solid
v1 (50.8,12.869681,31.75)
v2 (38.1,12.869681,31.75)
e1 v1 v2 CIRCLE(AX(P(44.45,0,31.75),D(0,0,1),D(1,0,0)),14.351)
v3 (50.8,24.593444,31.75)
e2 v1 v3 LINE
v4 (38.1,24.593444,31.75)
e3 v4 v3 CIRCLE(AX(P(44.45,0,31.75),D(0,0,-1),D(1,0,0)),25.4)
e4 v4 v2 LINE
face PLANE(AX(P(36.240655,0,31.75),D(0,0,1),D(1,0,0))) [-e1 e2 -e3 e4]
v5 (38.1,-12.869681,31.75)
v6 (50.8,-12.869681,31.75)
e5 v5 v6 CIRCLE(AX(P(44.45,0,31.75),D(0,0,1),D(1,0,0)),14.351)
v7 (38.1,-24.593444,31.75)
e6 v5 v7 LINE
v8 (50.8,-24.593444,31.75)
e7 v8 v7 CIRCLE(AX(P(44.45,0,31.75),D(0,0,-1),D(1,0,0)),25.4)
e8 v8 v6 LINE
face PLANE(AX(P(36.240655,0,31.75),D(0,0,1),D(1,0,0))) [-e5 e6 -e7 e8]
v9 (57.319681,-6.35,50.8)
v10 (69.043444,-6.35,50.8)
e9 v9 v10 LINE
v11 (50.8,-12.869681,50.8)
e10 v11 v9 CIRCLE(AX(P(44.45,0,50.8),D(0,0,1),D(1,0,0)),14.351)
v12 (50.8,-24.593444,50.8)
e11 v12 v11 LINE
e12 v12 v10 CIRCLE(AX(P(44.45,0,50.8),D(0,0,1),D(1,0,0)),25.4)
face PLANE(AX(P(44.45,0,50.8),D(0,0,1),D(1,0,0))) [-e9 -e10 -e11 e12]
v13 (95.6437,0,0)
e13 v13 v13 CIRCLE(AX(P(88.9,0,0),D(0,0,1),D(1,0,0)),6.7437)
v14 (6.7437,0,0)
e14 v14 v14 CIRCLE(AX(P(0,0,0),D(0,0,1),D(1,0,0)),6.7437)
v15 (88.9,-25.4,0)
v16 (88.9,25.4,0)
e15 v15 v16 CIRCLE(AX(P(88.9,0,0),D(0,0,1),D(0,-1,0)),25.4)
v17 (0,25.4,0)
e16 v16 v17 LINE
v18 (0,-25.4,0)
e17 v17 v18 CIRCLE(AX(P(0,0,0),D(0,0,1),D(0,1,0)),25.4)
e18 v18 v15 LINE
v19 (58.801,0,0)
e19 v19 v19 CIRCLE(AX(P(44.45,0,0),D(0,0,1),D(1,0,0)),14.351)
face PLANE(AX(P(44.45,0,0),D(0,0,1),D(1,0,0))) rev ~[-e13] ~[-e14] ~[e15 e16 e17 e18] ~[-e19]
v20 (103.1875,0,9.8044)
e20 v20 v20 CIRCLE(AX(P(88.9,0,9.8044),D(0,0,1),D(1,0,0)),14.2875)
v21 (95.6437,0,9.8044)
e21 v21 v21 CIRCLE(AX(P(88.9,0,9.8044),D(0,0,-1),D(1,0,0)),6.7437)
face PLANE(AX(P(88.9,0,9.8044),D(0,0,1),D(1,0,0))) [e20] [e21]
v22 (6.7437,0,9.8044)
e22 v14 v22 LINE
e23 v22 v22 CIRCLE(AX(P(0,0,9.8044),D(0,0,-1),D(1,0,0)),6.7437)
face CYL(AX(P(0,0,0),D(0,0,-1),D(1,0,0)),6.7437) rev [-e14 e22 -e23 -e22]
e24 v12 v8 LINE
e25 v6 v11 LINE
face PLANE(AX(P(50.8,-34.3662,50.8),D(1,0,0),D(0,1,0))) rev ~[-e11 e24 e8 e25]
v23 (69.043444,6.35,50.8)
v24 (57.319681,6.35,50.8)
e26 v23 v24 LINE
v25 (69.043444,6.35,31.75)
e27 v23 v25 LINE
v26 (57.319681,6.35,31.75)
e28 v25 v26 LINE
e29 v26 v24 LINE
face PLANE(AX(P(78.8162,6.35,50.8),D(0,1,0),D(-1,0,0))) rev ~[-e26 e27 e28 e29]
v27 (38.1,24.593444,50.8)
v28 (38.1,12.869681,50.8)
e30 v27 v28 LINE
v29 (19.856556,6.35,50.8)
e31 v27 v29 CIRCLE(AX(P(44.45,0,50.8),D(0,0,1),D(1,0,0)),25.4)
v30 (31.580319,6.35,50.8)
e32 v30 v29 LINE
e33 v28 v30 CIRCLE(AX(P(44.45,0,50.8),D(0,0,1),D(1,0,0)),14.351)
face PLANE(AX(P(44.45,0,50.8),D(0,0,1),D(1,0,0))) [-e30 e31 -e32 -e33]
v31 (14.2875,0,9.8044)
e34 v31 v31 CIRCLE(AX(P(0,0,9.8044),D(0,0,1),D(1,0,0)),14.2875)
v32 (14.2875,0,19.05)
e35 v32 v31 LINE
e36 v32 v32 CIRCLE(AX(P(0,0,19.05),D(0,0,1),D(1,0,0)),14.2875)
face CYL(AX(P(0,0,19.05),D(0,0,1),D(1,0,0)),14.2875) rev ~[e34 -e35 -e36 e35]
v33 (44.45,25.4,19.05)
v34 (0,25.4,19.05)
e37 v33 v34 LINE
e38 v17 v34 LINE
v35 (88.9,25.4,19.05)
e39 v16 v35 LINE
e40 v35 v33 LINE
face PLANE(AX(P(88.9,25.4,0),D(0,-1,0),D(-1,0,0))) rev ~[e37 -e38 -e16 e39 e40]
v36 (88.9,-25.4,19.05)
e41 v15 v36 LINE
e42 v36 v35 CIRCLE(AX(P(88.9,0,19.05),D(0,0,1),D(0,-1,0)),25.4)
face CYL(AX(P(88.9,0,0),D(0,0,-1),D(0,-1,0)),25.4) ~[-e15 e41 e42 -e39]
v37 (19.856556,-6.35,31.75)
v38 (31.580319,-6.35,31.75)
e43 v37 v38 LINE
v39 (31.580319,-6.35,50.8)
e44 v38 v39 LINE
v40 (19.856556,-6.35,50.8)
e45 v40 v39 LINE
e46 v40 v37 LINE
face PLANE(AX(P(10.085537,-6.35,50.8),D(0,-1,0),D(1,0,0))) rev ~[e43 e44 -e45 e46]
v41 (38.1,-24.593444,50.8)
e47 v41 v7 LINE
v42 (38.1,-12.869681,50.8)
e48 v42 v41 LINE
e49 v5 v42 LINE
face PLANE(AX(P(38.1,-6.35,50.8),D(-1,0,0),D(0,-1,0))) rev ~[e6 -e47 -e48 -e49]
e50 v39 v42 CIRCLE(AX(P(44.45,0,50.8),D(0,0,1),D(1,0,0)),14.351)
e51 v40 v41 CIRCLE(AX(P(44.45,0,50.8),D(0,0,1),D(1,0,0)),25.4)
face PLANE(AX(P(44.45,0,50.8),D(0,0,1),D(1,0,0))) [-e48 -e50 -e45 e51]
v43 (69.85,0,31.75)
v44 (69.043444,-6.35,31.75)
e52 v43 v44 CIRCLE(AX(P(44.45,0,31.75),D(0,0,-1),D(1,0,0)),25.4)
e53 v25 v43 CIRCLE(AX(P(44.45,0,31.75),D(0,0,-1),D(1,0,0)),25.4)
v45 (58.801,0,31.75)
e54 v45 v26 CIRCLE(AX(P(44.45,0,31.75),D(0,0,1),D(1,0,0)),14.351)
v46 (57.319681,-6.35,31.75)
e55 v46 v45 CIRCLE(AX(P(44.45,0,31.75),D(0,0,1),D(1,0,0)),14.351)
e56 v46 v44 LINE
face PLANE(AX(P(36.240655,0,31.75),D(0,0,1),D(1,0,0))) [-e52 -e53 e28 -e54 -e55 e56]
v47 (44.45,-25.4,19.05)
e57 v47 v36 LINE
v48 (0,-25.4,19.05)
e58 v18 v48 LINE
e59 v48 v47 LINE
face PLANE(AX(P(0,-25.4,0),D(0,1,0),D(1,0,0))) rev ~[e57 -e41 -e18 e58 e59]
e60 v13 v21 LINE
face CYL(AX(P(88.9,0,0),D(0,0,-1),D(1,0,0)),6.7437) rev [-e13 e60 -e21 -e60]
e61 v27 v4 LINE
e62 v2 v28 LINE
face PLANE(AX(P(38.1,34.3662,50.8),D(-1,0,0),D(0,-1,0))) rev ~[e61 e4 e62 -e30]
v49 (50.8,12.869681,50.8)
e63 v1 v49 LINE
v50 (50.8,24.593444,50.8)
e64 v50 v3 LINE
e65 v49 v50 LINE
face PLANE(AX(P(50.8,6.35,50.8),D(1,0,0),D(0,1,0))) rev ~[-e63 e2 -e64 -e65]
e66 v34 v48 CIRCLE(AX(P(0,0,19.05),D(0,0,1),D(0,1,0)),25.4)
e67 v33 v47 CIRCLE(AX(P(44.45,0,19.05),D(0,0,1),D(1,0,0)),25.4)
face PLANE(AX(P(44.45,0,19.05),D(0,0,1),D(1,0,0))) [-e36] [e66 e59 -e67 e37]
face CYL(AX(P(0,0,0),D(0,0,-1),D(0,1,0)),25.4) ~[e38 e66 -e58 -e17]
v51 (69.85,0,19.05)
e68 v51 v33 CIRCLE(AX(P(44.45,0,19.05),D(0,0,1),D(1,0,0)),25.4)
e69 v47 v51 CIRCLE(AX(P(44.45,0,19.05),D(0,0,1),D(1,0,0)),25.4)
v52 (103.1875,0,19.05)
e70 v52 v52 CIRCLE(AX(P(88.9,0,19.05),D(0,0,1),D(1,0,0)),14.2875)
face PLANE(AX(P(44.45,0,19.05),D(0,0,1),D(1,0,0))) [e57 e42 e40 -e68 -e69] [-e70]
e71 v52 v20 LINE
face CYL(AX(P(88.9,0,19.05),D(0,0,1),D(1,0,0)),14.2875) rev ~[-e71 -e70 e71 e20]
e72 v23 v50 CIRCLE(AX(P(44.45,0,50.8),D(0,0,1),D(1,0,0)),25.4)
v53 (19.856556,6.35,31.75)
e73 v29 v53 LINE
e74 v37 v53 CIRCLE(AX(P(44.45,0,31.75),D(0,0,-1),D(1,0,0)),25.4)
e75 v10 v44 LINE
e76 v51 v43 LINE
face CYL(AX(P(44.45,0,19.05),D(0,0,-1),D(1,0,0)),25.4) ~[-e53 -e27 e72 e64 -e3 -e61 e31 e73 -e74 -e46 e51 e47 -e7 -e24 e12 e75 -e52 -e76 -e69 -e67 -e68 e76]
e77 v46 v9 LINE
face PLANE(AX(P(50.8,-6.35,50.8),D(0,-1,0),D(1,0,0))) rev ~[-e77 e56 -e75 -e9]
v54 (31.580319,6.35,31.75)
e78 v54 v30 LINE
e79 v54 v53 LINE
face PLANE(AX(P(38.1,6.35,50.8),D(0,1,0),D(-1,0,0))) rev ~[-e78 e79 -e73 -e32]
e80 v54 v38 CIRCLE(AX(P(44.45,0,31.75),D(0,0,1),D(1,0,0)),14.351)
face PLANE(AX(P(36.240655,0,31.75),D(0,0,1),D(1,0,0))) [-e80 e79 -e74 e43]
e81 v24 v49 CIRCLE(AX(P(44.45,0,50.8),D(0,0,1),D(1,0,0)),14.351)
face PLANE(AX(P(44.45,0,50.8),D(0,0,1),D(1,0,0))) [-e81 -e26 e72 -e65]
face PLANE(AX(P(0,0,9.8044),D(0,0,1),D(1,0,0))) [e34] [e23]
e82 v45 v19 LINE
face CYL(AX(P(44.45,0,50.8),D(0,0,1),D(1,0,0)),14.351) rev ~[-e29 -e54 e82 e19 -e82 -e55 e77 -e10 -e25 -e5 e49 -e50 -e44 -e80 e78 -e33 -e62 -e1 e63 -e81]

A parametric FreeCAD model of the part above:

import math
import FreeCAD as App
import Part
import Sketcher

V = App.Vector
Q = App.Units.Quantity

doc = App.newDocument("Part")
body = doc.addObject("PartDesign::Body", "Body")

# Sketch on XY plane
sketch1 = doc.addObject("Sketcher::SketchObject", "Sketch")
body.addObject(sketch1)
sketch1.AttachmentSupport = (doc.XY_Plane, [""])
sketch1.MapMode = "FlatFace"
sketch1.addGeometry(Part.LineSegment(V(89, 25, 0), V(0, 25, 0)), False)
sketch1.addGeometry(Part.ArcOfCircle(Part.Circle(V(0, 0, 0), V(0, 0, 1), 25), math.radians(90), math.radians(270)), False)
sketch1.addGeometry(Part.LineSegment(V(0, -25, 0), V(89, -25, 0)), False)
sketch1.addGeometry(Part.ArcOfCircle(Part.Circle(V(89, 0, 0), V(0, 0, 1), 25), math.radians(-90), math.radians(90)), False)
sketch1.addGeometry(Part.Circle(V(0, 0, 0), V(0, 0, 1), 7), False)
sketch1.addGeometry(Part.Circle(V(89, 0, 0), V(0, 0, 1), 7), False)
sketch1.addConstraint(Sketcher.Constraint("Tangent", 0, 2, 1, 1))
sketch1.addConstraint(Sketcher.Constraint("Tangent", 1, 2, 2, 1))
sketch1.addConstraint(Sketcher.Constraint("Tangent", 2, 2, 3, 1))
sketch1.addConstraint(Sketcher.Constraint("Tangent", 3, 2, 0, 1))
sketch1.addConstraint(Sketcher.Constraint("Horizontal", 0))
sketch1.addConstraint(Sketcher.Constraint("Horizontal", 2))
sketch1.addConstraint(Sketcher.Constraint("Coincident", 1, 3, -1, 1))
sketch1.addConstraint(Sketcher.Constraint("Coincident", 4, 3, -1, 1))
sketch1.addConstraint(Sketcher.Constraint("Coincident", 5, 3, 3, 3))
sketch1.addConstraint(Sketcher.Constraint("Equal", 4, 5))
sketch1.addConstraint(Sketcher.Constraint("Radius", 1, Q("1 in")))
sketch1.addConstraint(Sketcher.Constraint("Diameter", 4, Q("0.531 in")))
sketch1.addConstraint(Sketcher.Constraint("DistanceX", 0, 2, 0, 1, Q("3.5 in")))
pad1 = doc.addObject("PartDesign::Pad", "Pad")
body.addObject(pad1)
pad1.Profile = sketch1
pad1.Length = Q("0.75 in")

# Sketch on XY plane
sketch2 = doc.addObject("Sketcher::SketchObject", "Sketch001")
body.addObject(sketch2)
sketch2.AttachmentSupport = (doc.XY_Plane, [""])
sketch2.MapMode = "FlatFace"
sketch2.AttachmentOffset = App.Placement(V(0, 0, 0.75 * 25.4), App.Rotation())
sketch2.addGeometry(Part.Circle(V(0, 0, 0), V(0, 0, 1), 14), False)
sketch2.addGeometry(Part.Circle(V(89, 0, 0), V(0, 0, 1), 14), False)
sketch2.addConstraint(Sketcher.Constraint("Coincident", 0, 3, -1, 1))
sketch2.addConstraint(Sketcher.Constraint("Equal", 0, 1))
sketch2.addConstraint(Sketcher.Constraint("PointOnObject", 1, 3, -1))
sketch2.addConstraint(Sketcher.Constraint("Diameter", 0, Q("1.125 in")))
sketch2.addConstraint(Sketcher.Constraint("DistanceX", -1, 1, 1, 3, Q("3.5 in")))
pocket1 = doc.addObject("PartDesign::Pocket", "Pocket")
body.addObject(pocket1)
pocket1.Profile = sketch2
pocket1.Length = Q("0.364 in")

# Sketch on XY plane
sketch3 = doc.addObject("Sketcher::SketchObject", "Sketch002")
body.addObject(sketch3)
sketch3.AttachmentSupport = (doc.XY_Plane, [""])
sketch3.MapMode = "FlatFace"
sketch3.AttachmentOffset = App.Placement(V(0, 0, 0.75 * 25.4), App.Rotation())
sketch3.addGeometry(Part.Circle(V(44, 0, 0), V(0, 0, 1), 25), False)
sketch3.addConstraint(Sketcher.Constraint("PointOnObject", 0, 3, -1))
sketch3.addConstraint(Sketcher.Constraint("Diameter", 0, Q("2 in")))
sketch3.addConstraint(Sketcher.Constraint("DistanceX", -1, 1, 0, 3, Q("1.75 in")))
pad2 = doc.addObject("PartDesign::Pad", "Pad001")
body.addObject(pad2)
pad2.Profile = sketch3
pad2.Length = Q("1.25 in")

# Sketch on XY plane
sketch4 = doc.addObject("Sketcher::SketchObject", "Sketch003")
body.addObject(sketch4)
sketch4.AttachmentSupport = (doc.XY_Plane, [""])
sketch4.MapMode = "FlatFace"
sketch4.AttachmentOffset = App.Placement(V(0, 0, 2 * 25.4), App.Rotation())
sketch4.addGeometry(Part.Circle(V(44, 0, 0), V(0, 0, 1), 14), False)
sketch4.addConstraint(Sketcher.Constraint("PointOnObject", 0, 3, -1))
sketch4.addConstraint(Sketcher.Constraint("Diameter", 0, Q("1.13 in")))
sketch4.addConstraint(Sketcher.Constraint("DistanceX", -1, 1, 0, 3, Q("1.75 in")))
pocket2 = doc.addObject("PartDesign::Pocket", "Pocket001")
body.addObject(pocket2)
pocket2.Profile = sketch4
pocket2.Type = "ThroughAll"

# Sketch on XY plane
sketch5 = doc.addObject("Sketcher::SketchObject", "Sketch004")
body.addObject(sketch5)
sketch5.AttachmentSupport = (doc.XY_Plane, [""])
sketch5.MapMode = "FlatFace"
sketch5.AttachmentOffset = App.Placement(V(0, 0, 2 * 25.4), App.Rotation())
sketch5.addGeometry(Part.LineSegment(V(38, 34, 0), V(38, 6, 0)), False)
sketch5.addGeometry(Part.LineSegment(V(38, 6, 0), V(10, 6, 0)), False)
sketch5.addGeometry(Part.LineSegment(V(10, 6, 0), V(10, -6, 0)), False)
sketch5.addGeometry(Part.LineSegment(V(10, -6, 0), V(38, -6, 0)), False)
sketch5.addGeometry(Part.LineSegment(V(38, -6, 0), V(38, -34, 0)), False)
sketch5.addGeometry(Part.LineSegment(V(38, -34, 0), V(51, -34, 0)), False)
sketch5.addGeometry(Part.LineSegment(V(51, -34, 0), V(51, -6, 0)), False)
sketch5.addGeometry(Part.LineSegment(V(51, -6, 0), V(79, -6, 0)), False)
sketch5.addGeometry(Part.LineSegment(V(79, -6, 0), V(79, 6, 0)), False)
sketch5.addGeometry(Part.LineSegment(V(79, 6, 0), V(51, 6, 0)), False)
sketch5.addGeometry(Part.LineSegment(V(51, 6, 0), V(51, 34, 0)), False)
sketch5.addGeometry(Part.LineSegment(V(51, 34, 0), V(38, 34, 0)), False)
sketch5.addConstraint(Sketcher.Constraint("Coincident", 0, 2, 1, 1))
sketch5.addConstraint(Sketcher.Constraint("Coincident", 1, 2, 2, 1))
sketch5.addConstraint(Sketcher.Constraint("Coincident", 2, 2, 3, 1))
sketch5.addConstraint(Sketcher.Constraint("Coincident", 3, 2, 4, 1))
sketch5.addConstraint(Sketcher.Constraint("Coincident", 4, 2, 5, 1))
sketch5.addConstraint(Sketcher.Constraint("Coincident", 5, 2, 6, 1))
sketch5.addConstraint(Sketcher.Constraint("Coincident", 6, 2, 7, 1))
sketch5.addConstraint(Sketcher.Constraint("Coincident", 7, 2, 8, 1))
sketch5.addConstraint(Sketcher.Constraint("Coincident", 8, 2, 9, 1))
sketch5.addConstraint(Sketcher.Constraint("Coincident", 9, 2, 10, 1))
sketch5.addConstraint(Sketcher.Constraint("Coincident", 10, 2, 11, 1))
sketch5.addConstraint(Sketcher.Constraint("Coincident", 11, 2, 0, 1))
sketch5.addConstraint(Sketcher.Constraint("Vertical", 0))
sketch5.addConstraint(Sketcher.Constraint("Horizontal", 1))
sketch5.addConstraint(Sketcher.Constraint("Vertical", 2))
sketch5.addConstraint(Sketcher.Constraint("Horizontal", 3))
sketch5.addConstraint(Sketcher.Constraint("Vertical", 4))
sketch5.addConstraint(Sketcher.Constraint("Horizontal", 5))
sketch5.addConstraint(Sketcher.Constraint("Vertical", 6))
sketch5.addConstraint(Sketcher.Constraint("Horizontal", 7))
sketch5.addConstraint(Sketcher.Constraint("Vertical", 8))
sketch5.addConstraint(Sketcher.Constraint("Horizontal", 9))
sketch5.addConstraint(Sketcher.Constraint("Vertical", 10))
sketch5.addConstraint(Sketcher.Constraint("Horizontal", 11))
sketch5.addConstraint(Sketcher.Constraint("Symmetric", 0, 2, 3, 2, -1))
sketch5.addConstraint(Sketcher.Constraint("Symmetric", 6, 2, 9, 2, -1))
sketch5.addConstraint(Sketcher.Constraint("Horizontal", 3, 2, 6, 2))
sketch5.addConstraint(Sketcher.Constraint("Equal", 9, 0))
sketch5.addConstraint(Sketcher.Constraint("Equal", 11, 2))
sketch5.addConstraint(Sketcher.Constraint("Equal", 0, 4))
sketch5.addConstraint(Sketcher.Constraint("DistanceX", 5, 1, 5, 2, Q("0.5 in")))
sketch5.addConstraint(Sketcher.Constraint("DistanceX", -1, 1, 5, 2, Q("2 in")))
sketch5.addConstraint(Sketcher.Constraint("DistanceX", 7, 1, 7, 2, Q("1.103 in")))
sketch5.addConstraint(Sketcher.Constraint("DistanceX", 1, 2, 1, 1, Q("28.014463 mm")))
pocket3 = doc.addObject("PartDesign::Pocket", "Pocket002")
body.addObject(pocket3)
pocket3.Profile = sketch5
pocket3.Length = Q("0.75 in")

doc.recompute()
